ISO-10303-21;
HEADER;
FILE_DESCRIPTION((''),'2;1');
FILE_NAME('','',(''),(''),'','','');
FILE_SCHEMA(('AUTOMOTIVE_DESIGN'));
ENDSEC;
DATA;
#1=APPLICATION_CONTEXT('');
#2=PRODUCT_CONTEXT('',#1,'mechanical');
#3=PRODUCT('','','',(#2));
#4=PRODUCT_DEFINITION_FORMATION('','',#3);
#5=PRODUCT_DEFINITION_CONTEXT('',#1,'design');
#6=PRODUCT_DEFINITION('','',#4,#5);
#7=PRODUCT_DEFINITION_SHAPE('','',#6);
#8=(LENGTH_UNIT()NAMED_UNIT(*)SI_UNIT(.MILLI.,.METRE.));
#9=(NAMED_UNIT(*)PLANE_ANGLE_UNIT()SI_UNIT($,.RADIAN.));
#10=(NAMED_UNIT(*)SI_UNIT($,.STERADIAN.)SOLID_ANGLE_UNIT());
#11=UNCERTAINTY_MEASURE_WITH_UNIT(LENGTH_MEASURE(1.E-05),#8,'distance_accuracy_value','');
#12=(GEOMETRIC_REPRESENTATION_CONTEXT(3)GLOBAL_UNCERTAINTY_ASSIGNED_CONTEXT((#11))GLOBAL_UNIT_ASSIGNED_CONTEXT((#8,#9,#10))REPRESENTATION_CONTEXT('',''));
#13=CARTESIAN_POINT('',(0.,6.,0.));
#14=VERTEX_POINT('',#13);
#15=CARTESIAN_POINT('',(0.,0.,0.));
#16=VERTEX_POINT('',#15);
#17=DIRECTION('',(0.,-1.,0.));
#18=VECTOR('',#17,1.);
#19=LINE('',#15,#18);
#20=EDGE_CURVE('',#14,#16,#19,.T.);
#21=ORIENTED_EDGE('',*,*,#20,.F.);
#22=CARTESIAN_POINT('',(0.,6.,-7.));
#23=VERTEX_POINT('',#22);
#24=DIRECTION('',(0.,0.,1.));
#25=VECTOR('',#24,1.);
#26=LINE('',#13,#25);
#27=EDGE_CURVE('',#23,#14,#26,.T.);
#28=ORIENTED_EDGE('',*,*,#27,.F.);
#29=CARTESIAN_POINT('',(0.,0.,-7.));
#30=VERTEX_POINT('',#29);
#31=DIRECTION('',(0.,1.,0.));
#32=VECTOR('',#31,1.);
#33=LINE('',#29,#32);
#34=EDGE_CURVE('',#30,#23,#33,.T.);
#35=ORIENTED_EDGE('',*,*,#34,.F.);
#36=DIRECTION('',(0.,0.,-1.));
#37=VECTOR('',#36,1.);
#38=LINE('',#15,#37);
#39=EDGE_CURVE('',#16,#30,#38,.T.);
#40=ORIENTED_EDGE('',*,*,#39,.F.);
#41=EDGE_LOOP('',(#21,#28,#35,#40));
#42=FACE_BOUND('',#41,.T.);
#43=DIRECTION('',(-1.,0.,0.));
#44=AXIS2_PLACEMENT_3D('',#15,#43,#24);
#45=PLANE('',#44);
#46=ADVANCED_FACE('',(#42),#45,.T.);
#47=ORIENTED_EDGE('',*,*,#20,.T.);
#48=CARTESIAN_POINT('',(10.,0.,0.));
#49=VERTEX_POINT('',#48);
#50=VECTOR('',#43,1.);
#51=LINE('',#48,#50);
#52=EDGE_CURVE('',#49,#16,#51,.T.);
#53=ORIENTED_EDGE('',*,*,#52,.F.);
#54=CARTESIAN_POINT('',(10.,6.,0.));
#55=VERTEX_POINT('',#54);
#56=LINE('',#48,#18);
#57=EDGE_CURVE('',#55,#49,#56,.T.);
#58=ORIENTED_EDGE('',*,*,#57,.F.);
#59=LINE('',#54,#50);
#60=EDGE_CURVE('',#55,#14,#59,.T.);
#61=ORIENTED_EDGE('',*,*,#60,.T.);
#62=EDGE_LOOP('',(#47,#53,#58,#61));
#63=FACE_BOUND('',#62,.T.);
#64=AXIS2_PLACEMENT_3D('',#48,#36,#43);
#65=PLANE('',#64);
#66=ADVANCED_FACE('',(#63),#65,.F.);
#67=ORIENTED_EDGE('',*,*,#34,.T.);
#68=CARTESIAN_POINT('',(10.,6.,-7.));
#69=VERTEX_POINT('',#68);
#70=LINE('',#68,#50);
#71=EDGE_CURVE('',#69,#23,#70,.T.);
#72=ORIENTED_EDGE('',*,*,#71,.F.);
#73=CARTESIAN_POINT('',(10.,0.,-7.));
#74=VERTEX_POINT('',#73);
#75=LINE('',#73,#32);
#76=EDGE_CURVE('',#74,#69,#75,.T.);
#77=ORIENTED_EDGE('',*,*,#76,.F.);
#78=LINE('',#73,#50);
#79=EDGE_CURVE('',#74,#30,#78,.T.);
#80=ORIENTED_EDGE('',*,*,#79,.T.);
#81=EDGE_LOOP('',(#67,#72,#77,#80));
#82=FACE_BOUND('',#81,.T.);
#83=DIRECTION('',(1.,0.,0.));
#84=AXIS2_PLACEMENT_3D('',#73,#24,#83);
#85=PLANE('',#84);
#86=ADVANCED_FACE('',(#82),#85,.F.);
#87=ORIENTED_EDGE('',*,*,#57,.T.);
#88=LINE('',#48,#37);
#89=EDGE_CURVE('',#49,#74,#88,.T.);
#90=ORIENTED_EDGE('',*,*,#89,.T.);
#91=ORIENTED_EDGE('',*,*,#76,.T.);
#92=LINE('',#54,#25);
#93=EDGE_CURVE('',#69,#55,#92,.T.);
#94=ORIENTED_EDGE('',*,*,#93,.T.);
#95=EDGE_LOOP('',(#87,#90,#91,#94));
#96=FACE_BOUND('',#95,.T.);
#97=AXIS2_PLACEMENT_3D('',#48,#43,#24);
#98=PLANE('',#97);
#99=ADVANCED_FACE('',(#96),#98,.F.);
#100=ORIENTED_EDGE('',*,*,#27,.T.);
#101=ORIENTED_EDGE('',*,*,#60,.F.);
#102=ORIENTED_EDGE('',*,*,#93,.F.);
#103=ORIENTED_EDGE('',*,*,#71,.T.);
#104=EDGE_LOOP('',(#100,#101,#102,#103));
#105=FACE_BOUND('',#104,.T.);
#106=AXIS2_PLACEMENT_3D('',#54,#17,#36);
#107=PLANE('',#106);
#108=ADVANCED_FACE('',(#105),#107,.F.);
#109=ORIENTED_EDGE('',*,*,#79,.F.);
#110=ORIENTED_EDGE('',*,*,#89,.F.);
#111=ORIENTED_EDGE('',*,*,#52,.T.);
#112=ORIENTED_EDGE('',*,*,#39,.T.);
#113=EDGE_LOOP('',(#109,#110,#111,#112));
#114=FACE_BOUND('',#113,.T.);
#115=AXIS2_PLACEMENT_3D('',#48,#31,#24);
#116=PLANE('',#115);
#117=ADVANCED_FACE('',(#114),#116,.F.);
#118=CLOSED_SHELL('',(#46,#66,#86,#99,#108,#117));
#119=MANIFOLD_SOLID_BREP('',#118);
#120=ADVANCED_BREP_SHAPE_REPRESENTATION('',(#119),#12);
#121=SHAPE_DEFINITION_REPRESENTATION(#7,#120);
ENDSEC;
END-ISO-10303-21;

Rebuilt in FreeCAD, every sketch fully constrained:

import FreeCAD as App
import Part
import Sketcher
Q = App.Units.Quantity

doc = App.newDocument("Part")
body = doc.addObject("PartDesign::Body", "Body")

# Sketch on YZ plane
sketch1 = body.newObject("Sketcher::SketchObject", "Sketch")
sketch1.AttachmentSupport = (doc.getObject("YZ_Plane"), [""])
sketch1.MapMode = "FlatFace"
sketch1.addGeometry(Part.LineSegment(App.Vector(6, 0, 0), App.Vector(0, 0, 0)), False)
sketch1.addGeometry(Part.LineSegment(App.Vector(0, 0, 0), App.Vector(0, -7, 0)), False)
sketch1.addGeometry(Part.LineSegment(App.Vector(0, -7, 0), App.Vector(6, -7, 0)), False)
sketch1.addGeometry(Part.LineSegment(App.Vector(6, -7, 0), App.Vector(6, 0, 0)), False)
sketch1.addConstraint(Sketcher.Constraint("Coincident", 0, 2, 1, 1))
sketch1.addConstraint(Sketcher.Constraint("Coincident", 1, 2, 2, 1))
sketch1.addConstraint(Sketcher.Constraint("Coincident", 2, 2, 3, 1))
sketch1.addConstraint(Sketcher.Constraint("Coincident", 3, 2, 0, 1))
sketch1.addConstraint(Sketcher.Constraint("Horizontal", 0))
sketch1.addConstraint(Sketcher.Constraint("Vertical", 1))
sketch1.addConstraint(Sketcher.Constraint("Horizontal", 2))
sketch1.addConstraint(Sketcher.Constraint("Vertical", 3))
sketch1.addConstraint(Sketcher.Constraint("Coincident", 0, 2, -1, 1))
sketch1.addConstraint(Sketcher.Constraint("DistanceX", 0, 2, 0, 1, Q("6 mm")))
sketch1.addConstraint(Sketcher.Constraint("DistanceY", 1, 2, 1, 1, Q("7 mm")))
pad1 = body.newObject("PartDesign::Pad", "Pad")
pad1.Profile = sketch1
pad1.Length = 10

doc.recompute()
